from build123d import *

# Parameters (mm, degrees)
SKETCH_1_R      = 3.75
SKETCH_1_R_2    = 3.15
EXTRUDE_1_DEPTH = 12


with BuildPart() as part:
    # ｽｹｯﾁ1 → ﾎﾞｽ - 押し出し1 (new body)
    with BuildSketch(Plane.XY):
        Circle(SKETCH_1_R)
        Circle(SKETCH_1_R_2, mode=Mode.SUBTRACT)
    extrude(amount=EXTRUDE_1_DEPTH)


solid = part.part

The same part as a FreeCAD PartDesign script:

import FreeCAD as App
import Part
import Sketcher
Q = App.Units.Quantity

doc = App.newDocument("Part")
body = doc.addObject("PartDesign::Body", "Body")

# Sketch on XY plane
sketch1 = body.newObject("Sketcher::SketchObject", "Sketch")
sketch1.AttachmentSupport = (doc.getObject("XY_Plane"), [""])
sketch1.MapMode = "FlatFace"
sketch1.addGeometry([
    Part.Circle(App.Vector(0, 0, 0), App.Vector(0, 0, 1), 3.75),
    Part.Circle(App.Vector(0, 0, 0), App.Vector(0, 0, 1), 3.15),
], False)
sketch1.addConstraint([
    Sketcher.Constraint("Coincident", 0, 3, -1, 1),
    Sketcher.Constraint("Coincident", 1, 3, -1, 1),
    Sketcher.Constraint("Diameter", 0, Q("7.5 mm")),
    Sketcher.Constraint("Diameter", 1, Q("6.3 mm")),
])
pad1 = body.newObject("PartDesign::Pad", "Pad")
pad1.Profile = sketch1
pad1.Length = 12

doc.recompute()
